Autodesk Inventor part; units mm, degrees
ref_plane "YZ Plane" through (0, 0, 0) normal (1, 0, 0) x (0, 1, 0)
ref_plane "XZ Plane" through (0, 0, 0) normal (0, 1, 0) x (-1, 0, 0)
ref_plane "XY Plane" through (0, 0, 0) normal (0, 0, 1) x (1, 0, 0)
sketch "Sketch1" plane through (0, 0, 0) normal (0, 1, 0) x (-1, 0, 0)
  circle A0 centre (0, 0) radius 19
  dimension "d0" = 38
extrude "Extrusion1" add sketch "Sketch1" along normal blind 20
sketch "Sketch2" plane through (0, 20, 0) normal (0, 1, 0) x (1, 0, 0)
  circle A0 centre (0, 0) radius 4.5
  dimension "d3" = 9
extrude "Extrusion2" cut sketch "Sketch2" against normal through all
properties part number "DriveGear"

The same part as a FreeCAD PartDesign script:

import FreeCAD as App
import Part
import Sketcher
Q = App.Units.Quantity

doc = App.newDocument("Part")
body = doc.addObject("PartDesign::Body", "Body")

# Sketch on XZ plane
sketch1 = doc.addObject("Sketcher::SketchObject", "Sketch")
body.addObject(sketch1)
sketch1.AttachmentSupport = (doc.XZ_Plane, [""])
sketch1.MapMode = "FlatFace"
sketch1.addGeometry(Part.Circle(App.Vector(0, 0, 0), App.Vector(0, 0, 1), 19), False)
sketch1.addConstraint(Sketcher.Constraint("Coincident", 0, 3, -1, 1))
sketch1.addConstraint(Sketcher.Constraint("Diameter", 0, Q("38 mm")))
pad1 = doc.addObject("PartDesign::Pad", "Pad")
body.addObject(pad1)
pad1.Profile = sketch1
pad1.Length = 20
pad1.Reversed = True

# Sketch on XZ plane
sketch2 = doc.addObject("Sketcher::SketchObject", "Sketch001")
body.addObject(sketch2)
sketch2.AttachmentSupport = (doc.XZ_Plane, [""])
sketch2.MapMode = "FlatFace"
sketch2.AttachmentOffset = App.Placement(App.Vector(0, 0, -20), App.Rotation())
sketch2.addGeometry(Part.Circle(App.Vector(0, 0, 0), App.Vector(0, 0, 1), 4.5), False)
sketch2.addConstraint(Sketcher.Constraint("Coincident", 0, 3, -1, 1))
sketch2.addConstraint(Sketcher.Constraint("Diameter", 0, Q("9 mm")))
pocket1 = doc.addObject("PartDesign::Pocket", "Pocket")
body.addObject(pocket1)
pocket1.Profile = sketch2
pocket1.Type = "ThroughAll"
pocket1.Reversed = True

doc.recompute()
